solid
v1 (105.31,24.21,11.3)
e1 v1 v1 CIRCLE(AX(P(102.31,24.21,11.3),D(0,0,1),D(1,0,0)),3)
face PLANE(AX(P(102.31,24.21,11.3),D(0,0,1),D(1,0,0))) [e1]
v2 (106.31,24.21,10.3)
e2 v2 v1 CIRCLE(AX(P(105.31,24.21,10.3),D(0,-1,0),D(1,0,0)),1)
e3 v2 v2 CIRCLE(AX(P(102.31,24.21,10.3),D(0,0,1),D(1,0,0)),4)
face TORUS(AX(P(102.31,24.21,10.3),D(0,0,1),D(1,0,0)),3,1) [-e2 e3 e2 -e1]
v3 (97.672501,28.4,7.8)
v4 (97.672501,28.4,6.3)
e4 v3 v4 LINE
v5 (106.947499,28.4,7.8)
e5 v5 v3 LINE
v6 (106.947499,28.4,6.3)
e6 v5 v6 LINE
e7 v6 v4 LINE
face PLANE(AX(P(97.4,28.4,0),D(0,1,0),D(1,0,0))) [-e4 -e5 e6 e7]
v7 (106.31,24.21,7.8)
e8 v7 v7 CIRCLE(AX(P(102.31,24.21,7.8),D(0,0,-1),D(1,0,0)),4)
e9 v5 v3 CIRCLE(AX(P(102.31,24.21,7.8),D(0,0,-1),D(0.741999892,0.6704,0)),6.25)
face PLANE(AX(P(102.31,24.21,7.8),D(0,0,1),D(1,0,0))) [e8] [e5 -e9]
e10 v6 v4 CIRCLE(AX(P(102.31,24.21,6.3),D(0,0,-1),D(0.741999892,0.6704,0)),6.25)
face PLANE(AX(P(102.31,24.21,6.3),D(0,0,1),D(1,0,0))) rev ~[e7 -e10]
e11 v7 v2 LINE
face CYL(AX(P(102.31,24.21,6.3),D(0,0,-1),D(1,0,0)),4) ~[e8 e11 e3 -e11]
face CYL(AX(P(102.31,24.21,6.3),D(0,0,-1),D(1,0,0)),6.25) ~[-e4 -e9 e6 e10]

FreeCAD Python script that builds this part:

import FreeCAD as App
import Part
import Sketcher
from FreeCAD import Vector


def edges_at(feature, points):
    """Names of the edges that pass closest to the given points."""
    edges = feature.Shape.Edges
    near = lambda p: min(range(len(edges)), key=lambda i: edges[i].distToShape(Part.Vertex(*p))[0])
    return sorted({f"Edge{near(p) + 1}" for p in points})

doc = App.newDocument("Part")
body = doc.addObject("PartDesign::Body", "Body")

sketch1 = body.newObject("Sketcher::SketchObject", "Sketch")
sketch1.AttachmentSupport = (doc.getObject("XY_Plane"), [""])
sketch1.MapMode = "FlatFace"
sketch1.addGeometry(Part.LineSegment(Vector(97.4, 38.4, 0), Vector(97.4, 28.4, 0)), False)
sketch1.addGeometry(Part.LineSegment(Vector(97.4, 28.4, 0), Vector(107.4, 28.4, 0)), False)
sketch1.addGeometry(Part.LineSegment(Vector(107.4, 28.4, 0), Vector(107.4, 38.4, 0)), False)
sketch1.addGeometry(Part.LineSegment(Vector(107.4, 38.4, 0), Vector(97.4, 38.4, 0)), False)
sketch1.addConstraint(Sketcher.Constraint("Coincident", 0, 2, 1, 1))
sketch1.addConstraint(Sketcher.Constraint("Coincident", 1, 2, 2, 1))
sketch1.addConstraint(Sketcher.Constraint("Coincident", 2, 2, 3, 1))
sketch1.addConstraint(Sketcher.Constraint("Coincident", 3, 2, 0, 1))
sketch1.addConstraint(Sketcher.Constraint("Vertical", 0))
sketch1.addConstraint(Sketcher.Constraint("Horizontal", 1))
sketch1.addConstraint(Sketcher.Constraint("Vertical", 2))
sketch1.addConstraint(Sketcher.Constraint("Horizontal", 3))
sketch1.addConstraint(Sketcher.Constraint("Equal", 3, 0))
sketch1.addConstraint(Sketcher.Constraint("DistanceX", 1, 1, 1, 2, 10.0))
sketch1.addConstraint(Sketcher.Constraint("DistanceX", -1, 1, 0, 2, 97.4))
sketch1.addConstraint(Sketcher.Constraint("DistanceY", -1, 1, 0, 2, 28.4))
pad1 = body.newObject("PartDesign::Pad", "Pad")
pad1.Profile = sketch1
pad1.Length = 10
body2 = doc.addObject("PartDesign::Body", "Body001")

sketch2 = body2.newObject("Sketcher::SketchObject", "Sketch001")
sketch2.AttachmentSupport = (doc.getObject("XY_Plane001"), [""])
sketch2.MapMode = "FlatFace"
sketch2.AttachmentOffset = App.Placement(Vector(0, 0, 6.3), App.Rotation())
sketch2.addGeometry(Part.Circle(Vector(120.31, 24.21, 0), Vector(0, 0, 1), 4), False)
sketch2.addConstraint(Sketcher.Constraint("Diameter", 0, 8.0))
sketch2.addConstraint(Sketcher.Constraint("DistanceX", -1, 1, 0, 3, 120.31))
sketch2.addConstraint(Sketcher.Constraint("DistanceY", -1, 1, 0, 3, 24.21))
pad2 = body2.newObject("PartDesign::Pad", "Pad001")
pad2.Profile = sketch2
pad2.Length = 5
doc.recompute()

fillet = body2.newObject("PartDesign::Fillet", "Fillet")
fillet.Base = (pad2, edges_at(pad2, [(116.31, 24.21, 11.3)]))
fillet.Radius = 1
body3 = doc.addObject("PartDesign::Body", "Body002")

sketch3 = body3.newObject("Sketcher::SketchObject", "Sketch002")
sketch3.AttachmentSupport = (doc.getObject("XY_Plane002"), [""])
sketch3.MapMode = "FlatFace"
sketch3.AttachmentOffset = App.Placement(Vector(0, 0, 6.3), App.Rotation())
sketch3.addGeometry(Part.Circle(Vector(120.31, 24.21, 0), Vector(0, 0, 1), 6.25), False)
sketch3.addConstraint(Sketcher.Constraint("Diameter", 0, 12.5))
sketch3.addConstraint(Sketcher.Constraint("DistanceX", -1, 1, 0, 3, 120.31))
sketch3.addConstraint(Sketcher.Constraint("DistanceY", -1, 1, 0, 3, 24.21))
pad3 = body3.newObject("PartDesign::Pad", "Pad002")
pad3.Profile = sketch3
pad3.Length = 1.5
doc.recompute()

boolean = body3.newObject("PartDesign::Boolean", "Boolean")
boolean.Type = "Fuse"
boolean.addObjects([body2])
body4 = doc.addObject("PartDesign::Body", "Body003")
doc.recompute()

body3.Placement = App.Placement(Vector(-18, 0, 0), App.Rotation(Vector(0, 0, 1), 0))
boolean2 = body4.newObject("PartDesign::Boolean", "Boolean001")
boolean2.Type = "Fuse"
boolean2.addObjects([body3])
doc.recompute()

boolean3 = body4.newObject("PartDesign::Boolean", "Boolean002")
boolean3.Type = "Cut"
boolean3.addObjects([body])

doc.recompute()
